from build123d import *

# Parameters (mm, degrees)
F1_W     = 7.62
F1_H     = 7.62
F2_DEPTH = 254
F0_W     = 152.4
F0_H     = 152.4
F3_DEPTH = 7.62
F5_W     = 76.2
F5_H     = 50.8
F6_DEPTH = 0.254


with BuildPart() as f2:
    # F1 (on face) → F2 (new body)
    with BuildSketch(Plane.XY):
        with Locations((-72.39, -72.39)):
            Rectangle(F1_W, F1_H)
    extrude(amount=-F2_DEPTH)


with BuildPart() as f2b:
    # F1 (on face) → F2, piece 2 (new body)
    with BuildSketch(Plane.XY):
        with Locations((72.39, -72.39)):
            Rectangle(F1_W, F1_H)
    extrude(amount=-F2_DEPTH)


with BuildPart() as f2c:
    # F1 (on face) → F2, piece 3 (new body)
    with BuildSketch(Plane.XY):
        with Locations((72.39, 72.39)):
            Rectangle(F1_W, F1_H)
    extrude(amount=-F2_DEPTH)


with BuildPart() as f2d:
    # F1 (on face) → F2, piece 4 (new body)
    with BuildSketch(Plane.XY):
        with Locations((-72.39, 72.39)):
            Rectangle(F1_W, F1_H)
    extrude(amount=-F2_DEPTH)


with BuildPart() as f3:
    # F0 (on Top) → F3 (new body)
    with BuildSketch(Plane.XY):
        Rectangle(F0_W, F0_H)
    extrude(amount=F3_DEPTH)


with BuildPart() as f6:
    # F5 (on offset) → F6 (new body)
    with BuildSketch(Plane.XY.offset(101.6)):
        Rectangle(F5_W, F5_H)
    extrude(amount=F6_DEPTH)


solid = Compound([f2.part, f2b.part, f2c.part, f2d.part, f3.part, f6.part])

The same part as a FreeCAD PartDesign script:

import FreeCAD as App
import Part
import Sketcher
from FreeCAD import Vector
Q = App.Units.Quantity

doc = App.newDocument("Part")
body = doc.addObject("PartDesign::Body", "Body")

sketch1 = doc.addObject("Sketcher::SketchObject", "Sketch")
body.addObject(sketch1)
sketch1.AttachmentSupport = (doc.XY_Plane, [""])
sketch1.MapMode = "FlatFace"
sketch1.addGeometry(Part.LineSegment(Vector(-76.2, -68.58, 0), Vector(-76.2, -76.2, 0)), False)
sketch1.addGeometry(Part.LineSegment(Vector(-76.2, -76.2, 0), Vector(-68.58, -76.2, 0)), False)
sketch1.addGeometry(Part.LineSegment(Vector(-68.58, -76.2, 0), Vector(-68.58, -68.58, 0)), False)
sketch1.addGeometry(Part.LineSegment(Vector(-68.58, -68.58, 0), Vector(-76.2, -68.58, 0)), False)
sketch1.addConstraint(Sketcher.Constraint("Coincident", 0, 2, 1, 1))
sketch1.addConstraint(Sketcher.Constraint("Coincident", 1, 2, 2, 1))
sketch1.addConstraint(Sketcher.Constraint("Coincident", 2, 2, 3, 1))
sketch1.addConstraint(Sketcher.Constraint("Coincident", 3, 2, 0, 1))
sketch1.addConstraint(Sketcher.Constraint("Vertical", 0))
sketch1.addConstraint(Sketcher.Constraint("Horizontal", 1))
sketch1.addConstraint(Sketcher.Constraint("Vertical", 2))
sketch1.addConstraint(Sketcher.Constraint("Horizontal", 3))
sketch1.addConstraint(Sketcher.Constraint("Equal", 3, 0))
sketch1.addConstraint(Sketcher.Constraint("DistanceX", 1, 1, 1, 2, Q("0.3 in")))
sketch1.addConstraint(Sketcher.Constraint("DistanceX", 0, 2, -1, 1, Q("3 in")))
sketch1.addConstraint(Sketcher.Constraint("DistanceY", 0, 2, -1, 1, Q("3 in")))
pad1 = doc.addObject("PartDesign::Pad", "Pad")
body.addObject(pad1)
pad1.Profile = sketch1
pad1.Length = Q("10 in")
pad1.Reversed = True
body2 = doc.addObject("PartDesign::Body", "Body001")

sketch2 = doc.addObject("Sketcher::SketchObject", "Sketch001")
body2.addObject(sketch2)
sketch2.AttachmentSupport = (doc.getObject("XY_Plane001"), [""])
sketch2.MapMode = "FlatFace"
sketch2.addGeometry(Part.LineSegment(Vector(68.58, -68.58, 0), Vector(68.58, -76.2, 0)), False)
sketch2.addGeometry(Part.LineSegment(Vector(68.58, -76.2, 0), Vector(76.2, -76.2, 0)), False)
sketch2.addGeometry(Part.LineSegment(Vector(76.2, -76.2, 0), Vector(76.2, -68.58, 0)), False)
sketch2.addGeometry(Part.LineSegment(Vector(76.2, -68.58, 0), Vector(68.58, -68.58, 0)), False)
sketch2.addConstraint(Sketcher.Constraint("Coincident", 0, 2, 1, 1))
sketch2.addConstraint(Sketcher.Constraint("Coincident", 1, 2, 2, 1))
sketch2.addConstraint(Sketcher.Constraint("Coincident", 2, 2, 3, 1))
sketch2.addConstraint(Sketcher.Constraint("Coincident", 3, 2, 0, 1))
sketch2.addConstraint(Sketcher.Constraint("Vertical", 0))
sketch2.addConstraint(Sketcher.Constraint("Horizontal", 1))
sketch2.addConstraint(Sketcher.Constraint("Vertical", 2))
sketch2.addConstraint(Sketcher.Constraint("Horizontal", 3))
sketch2.addConstraint(Sketcher.Constraint("Equal", 3, 0))
sketch2.addConstraint(Sketcher.Constraint("DistanceX", 1, 1, 1, 2, Q("0.3 in")))
sketch2.addConstraint(Sketcher.Constraint("DistanceY", 0, 2, -1, 1, Q("3 in")))
sketch2.addConstraint(Sketcher.Constraint("DistanceX", -1, 1, 1, 2, Q("3 in")))
pad2 = doc.addObject("PartDesign::Pad", "Pad001")
body2.addObject(pad2)
pad2.Profile = sketch2
pad2.Length = Q("10 in")
pad2.Reversed = True
body3 = doc.addObject("PartDesign::Body", "Body002")

sketch3 = doc.addObject("Sketcher::SketchObject", "Sketch002")
body3.addObject(sketch3)
sketch3.AttachmentSupport = (doc.getObject("XY_Plane002"), [""])
sketch3.MapMode = "FlatFace"
sketch3.addGeometry(Part.LineSegment(Vector(68.58, 76.2, 0), Vector(68.58, 68.58, 0)), False)
sketch3.addGeometry(Part.LineSegment(Vector(68.58, 68.58, 0), Vector(76.2, 68.58, 0)), False)
sketch3.addGeometry(Part.LineSegment(Vector(76.2, 68.58, 0), Vector(76.2, 76.2, 0)), False)
sketch3.addGeometry(Part.LineSegment(Vector(76.2, 76.2, 0), Vector(68.58, 76.2, 0)), False)
sketch3.addConstraint(Sketcher.Constraint("Coincident", 0, 2, 1, 1))
sketch3.addConstraint(Sketcher.Constraint("Coincident", 1, 2, 2, 1))
sketch3.addConstraint(Sketcher.Constraint("Coincident", 2, 2, 3, 1))
sketch3.addConstraint(Sketcher.Constraint("Coincident", 3, 2, 0, 1))
sketch3.addConstraint(Sketcher.Constraint("Vertical", 0))
sketch3.addConstraint(Sketcher.Constraint("Horizontal", 1))
sketch3.addConstraint(Sketcher.Constraint("Vertical", 2))
sketch3.addConstraint(Sketcher.Constraint("Horizontal", 3))
sketch3.addConstraint(Sketcher.Constraint("Equal", 3, 0))
sketch3.addConstraint(Sketcher.Constraint("DistanceX", 1, 1, 1, 2, Q("0.3 in")))
sketch3.addConstraint(Sketcher.Constraint("DistanceX", -1, 1, 1, 2, Q("3 in")))
sketch3.addConstraint(Sketcher.Constraint("DistanceY", -1, 1, 2, 2, Q("3 in")))
pad3 = doc.addObject("PartDesign::Pad", "Pad002")
body3.addObject(pad3)
pad3.Profile = sketch3
pad3.Length = Q("10 in")
pad3.Reversed = True
body4 = doc.addObject("PartDesign::Body", "Body003")

sketch4 = doc.addObject("Sketcher::SketchObject", "Sketch003")
body4.addObject(sketch4)
sketch4.AttachmentSupport = (doc.getObject("XY_Plane003"), [""])
sketch4.MapMode = "FlatFace"
sketch4.addGeometry(Part.LineSegment(Vector(-76.2, 76.2, 0), Vector(-76.2, 68.58, 0)), False)
sketch4.addGeometry(Part.LineSegment(Vector(-76.2, 68.58, 0), Vector(-68.58, 68.58, 0)), False)
sketch4.addGeometry(Part.LineSegment(Vector(-68.58, 68.58, 0), Vector(-68.58, 76.2, 0)), False)
sketch4.addGeometry(Part.LineSegment(Vector(-68.58, 76.2, 0), Vector(-76.2, 76.2, 0)), False)
sketch4.addConstraint(Sketcher.Constraint("Coincident", 0, 2, 1, 1))
sketch4.addConstraint(Sketcher.Constraint("Coincident", 1, 2, 2, 1))
sketch4.addConstraint(Sketcher.Constraint("Coincident", 2, 2, 3, 1))
sketch4.addConstraint(Sketcher.Constraint("Coincident", 3, 2, 0, 1))
sketch4.addConstraint(Sketcher.Constraint("Vertical", 0))
sketch4.addConstraint(Sketcher.Constraint("Horizontal", 1))
sketch4.addConstraint(Sketcher.Constraint("Vertical", 2))
sketch4.addConstraint(Sketcher.Constraint("Horizontal", 3))
sketch4.addConstraint(Sketcher.Constraint("Equal", 3, 0))
sketch4.addConstraint(Sketcher.Constraint("DistanceX", 1, 1, 1, 2, Q("0.3 in")))
sketch4.addConstraint(Sketcher.Constraint("DistanceX", 0, 2, -1, 1, Q("3 in")))
sketch4.addConstraint(Sketcher.Constraint("DistanceY", -1, 1, 2, 2, Q("3 in")))
pad4 = doc.addObject("PartDesign::Pad", "Pad003")
body4.addObject(pad4)
pad4.Profile = sketch4
pad4.Length = Q("10 in")
pad4.Reversed = True
body5 = doc.addObject("PartDesign::Body", "Body004")

sketch5 = doc.addObject("Sketcher::SketchObject", "Sketch004")
body5.addObject(sketch5)
sketch5.AttachmentSupport = (doc.getObject("XY_Plane004"), [""])
sketch5.MapMode = "FlatFace"
sketch5.addGeometry(Part.LineSegment(Vector(-76.2, 76.2, 0), Vector(-76.2, -76.2, 0)), False)
sketch5.addGeometry(Part.LineSegment(Vector(-76.2, -76.2, 0), Vector(76.2, -76.2, 0)), False)
sketch5.addGeometry(Part.LineSegment(Vector(76.2, -76.2, 0), Vector(76.2, 76.2, 0)), False)
sketch5.addGeometry(Part.LineSegment(Vector(76.2, 76.2, 0), Vector(-76.2, 76.2, 0)), False)
sketch5.addConstraint(Sketcher.Constraint("Coincident", 0, 2, 1, 1))
sketch5.addConstraint(Sketcher.Constraint("Coincident", 1, 2, 2, 1))
sketch5.addConstraint(Sketcher.Constraint("Coincident", 2, 2, 3, 1))
sketch5.addConstraint(Sketcher.Constraint("Coincident", 3, 2, 0, 1))
sketch5.addConstraint(Sketcher.Constraint("Vertical", 0))
sketch5.addConstraint(Sketcher.Constraint("Horizontal", 1))
sketch5.addConstraint(Sketcher.Constraint("Vertical", 2))
sketch5.addConstraint(Sketcher.Constraint("Horizontal", 3))
sketch5.addConstraint(Sketcher.Constraint("Symmetric", 0, 2, 2, 2, -1, 1))
sketch5.addConstraint(Sketcher.Constraint("Equal", 3, 0))
sketch5.addConstraint(Sketcher.Constraint("DistanceX", 1, 1, 1, 2, Q("6 in")))
pad5 = doc.addObject("PartDesign::Pad", "Pad004")
body5.addObject(pad5)
pad5.Profile = sketch5
pad5.Length = Q("0.3 in")
body6 = doc.addObject("PartDesign::Body", "Body005")

sketch6 = doc.addObject("Sketcher::SketchObject", "Sketch005")
body6.addObject(sketch6)
sketch6.AttachmentSupport = (doc.getObject("XY_Plane005"), [""])
sketch6.MapMode = "FlatFace"
sketch6.AttachmentOffset = App.Placement(Vector(0, 0, 4 * 25.4), App.Rotation())
sketch6.addGeometry(Part.LineSegment(Vector(-38.1, 25.4, 0), Vector(-38.1, -25.4, 0)), False)
sketch6.addGeometry(Part.LineSegment(Vector(-38.1, -25.4, 0), Vector(38.1, -25.4, 0)), False)
sketch6.addGeometry(Part.LineSegment(Vector(38.1, -25.4, 0), Vector(38.1, 25.4, 0)), False)
sketch6.addGeometry(Part.LineSegment(Vector(38.1, 25.4, 0), Vector(-38.1, 25.4, 0)), False)
sketch6.addConstraint(Sketcher.Constraint("Coincident", 0, 2, 1, 1))
sketch6.addConstraint(Sketcher.Constraint("Coincident", 1, 2, 2, 1))
sketch6.addConstraint(Sketcher.Constraint("Coincident", 2, 2, 3, 1))
sketch6.addConstraint(Sketcher.Constraint("Coincident", 3, 2, 0, 1))
sketch6.addConstraint(Sketcher.Constraint("Vertical", 0))
sketch6.addConstraint(Sketcher.Constraint("Horizontal", 1))
sketch6.addConstraint(Sketcher.Constraint("Vertical", 2))
sketch6.addConstraint(Sketcher.Constraint("Horizontal", 3))
sketch6.addConstraint(Sketcher.Constraint("Symmetric", 0, 2, 2, 2, -1, 1))
sketch6.addConstraint(Sketcher.Constraint("DistanceX", 1, 1, 1, 2, Q("3 in")))
sketch6.addConstraint(Sketcher.Constraint("DistanceY", 0, 2, 0, 1, Q("2 in")))
pad6 = doc.addObject("PartDesign::Pad", "Pad005")
body6.addObject(pad6)
pad6.Profile = sketch6
pad6.Length = Q("0.01 in")

doc.recompute()
